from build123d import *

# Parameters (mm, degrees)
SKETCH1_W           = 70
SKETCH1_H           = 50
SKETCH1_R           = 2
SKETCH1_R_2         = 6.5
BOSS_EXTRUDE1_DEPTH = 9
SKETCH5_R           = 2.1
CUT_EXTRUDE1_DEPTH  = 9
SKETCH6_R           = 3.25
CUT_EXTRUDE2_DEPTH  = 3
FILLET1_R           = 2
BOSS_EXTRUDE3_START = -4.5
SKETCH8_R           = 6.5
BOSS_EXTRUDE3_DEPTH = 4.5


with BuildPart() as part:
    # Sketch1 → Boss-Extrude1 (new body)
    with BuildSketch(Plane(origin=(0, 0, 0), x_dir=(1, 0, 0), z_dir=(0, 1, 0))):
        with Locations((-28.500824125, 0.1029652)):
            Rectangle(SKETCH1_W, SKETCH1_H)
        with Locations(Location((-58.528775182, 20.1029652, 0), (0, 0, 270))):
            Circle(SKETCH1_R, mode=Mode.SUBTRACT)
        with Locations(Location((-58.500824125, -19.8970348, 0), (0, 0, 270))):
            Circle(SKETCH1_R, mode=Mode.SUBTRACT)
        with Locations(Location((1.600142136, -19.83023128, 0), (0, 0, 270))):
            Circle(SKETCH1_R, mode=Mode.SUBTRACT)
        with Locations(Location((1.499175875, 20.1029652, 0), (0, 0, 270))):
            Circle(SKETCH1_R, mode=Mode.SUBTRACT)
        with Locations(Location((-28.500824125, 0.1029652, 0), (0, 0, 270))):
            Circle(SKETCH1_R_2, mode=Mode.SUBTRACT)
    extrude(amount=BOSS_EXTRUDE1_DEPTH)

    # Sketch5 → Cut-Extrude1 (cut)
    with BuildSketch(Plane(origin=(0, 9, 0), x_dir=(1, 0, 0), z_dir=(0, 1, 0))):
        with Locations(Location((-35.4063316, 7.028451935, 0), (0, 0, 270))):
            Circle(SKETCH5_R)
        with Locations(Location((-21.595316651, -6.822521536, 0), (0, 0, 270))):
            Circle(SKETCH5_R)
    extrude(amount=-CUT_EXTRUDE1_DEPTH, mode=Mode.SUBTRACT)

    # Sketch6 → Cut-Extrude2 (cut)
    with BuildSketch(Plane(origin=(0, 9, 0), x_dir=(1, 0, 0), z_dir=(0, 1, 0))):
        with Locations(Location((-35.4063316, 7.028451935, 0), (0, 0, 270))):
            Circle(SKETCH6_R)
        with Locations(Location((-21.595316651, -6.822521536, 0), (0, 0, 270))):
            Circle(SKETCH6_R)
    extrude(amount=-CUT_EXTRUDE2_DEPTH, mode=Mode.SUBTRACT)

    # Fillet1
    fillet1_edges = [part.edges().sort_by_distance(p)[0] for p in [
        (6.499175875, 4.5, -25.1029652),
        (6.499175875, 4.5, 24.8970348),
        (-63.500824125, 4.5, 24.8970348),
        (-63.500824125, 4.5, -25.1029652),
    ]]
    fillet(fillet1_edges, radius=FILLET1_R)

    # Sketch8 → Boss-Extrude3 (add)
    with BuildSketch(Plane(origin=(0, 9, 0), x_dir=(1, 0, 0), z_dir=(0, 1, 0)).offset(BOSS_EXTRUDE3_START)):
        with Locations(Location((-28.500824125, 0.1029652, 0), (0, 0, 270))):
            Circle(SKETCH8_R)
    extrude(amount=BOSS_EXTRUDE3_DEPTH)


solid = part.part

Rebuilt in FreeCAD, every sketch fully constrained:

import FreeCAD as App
import Part
import Sketcher


def edges_at(feature, points):
    """Names of the edges that pass closest to the given points."""
    edges = feature.Shape.Edges
    near = lambda p: min(range(len(edges)), key=lambda i: edges[i].distToShape(Part.Vertex(*p))[0])
    return sorted({f"Edge{near(p) + 1}" for p in points})


def add_polygon(sketch, points):
    """Adds a closed chain of lines whose ends are joined by coincident constraints."""
    first, n = sketch.GeometryCount, len(points)
    for a, b in zip(points, points[1:] + points[:1]):
        sketch.addGeometry(Part.LineSegment(App.Vector(*a, 0), App.Vector(*b, 0)), False)
    for i in range(n):
        sketch.addConstraint(Sketcher.Constraint("Coincident", first + i, 2, first + (i + 1) % n, 1))

doc = App.newDocument("Part")
body = doc.addObject("PartDesign::Body", "Body")

# Sketch on XZ plane
sketch1 = doc.addObject("Sketcher::SketchObject", "Sketch")
body.addObject(sketch1)
sketch1.AttachmentSupport = (doc.XZ_Plane, [""])
sketch1.MapMode = "FlatFace"
add_polygon(sketch1, [(-63.5, -25.1), (-63.5, 24.9), (6.5, 24.9), (6.5, -25.1)])  # lines 0-3
sketch1.addGeometry(Part.Circle(App.Vector(-58.5, 19.9, 0), App.Vector(0, 0, 1), 2), False)  # 4
sketch1.addGeometry(Part.Circle(App.Vector(1.6, 19.8, 0), App.Vector(0, 0, 1), 2), False)  # 5
sketch1.addGeometry(Part.Circle(App.Vector(-28.5, -0.1, 0), App.Vector(0, 0, 1), 6.5), False)  # 6
sketch1.addGeometry(Part.Circle(App.Vector(-58.5, -20.1, 0), App.Vector(0, 0, 1), 2), False)  # 7
sketch1.addGeometry(Part.Circle(App.Vector(1.5, -20.1, 0), App.Vector(0, 0, 1), 2), False)  # 8
sketch1.addConstraint([
    Sketcher.Constraint("Vertical", 0),
    Sketcher.Constraint("Horizontal", 1),
    Sketcher.Constraint("Vertical", 2),
    Sketcher.Constraint("Horizontal", 3),
    Sketcher.Constraint("Equal", 4, 5),
    Sketcher.Constraint("Equal", 5, 7),
    Sketcher.Constraint("Equal", 7, 8),
    Sketcher.Constraint("Horizontal", 7, 3, 8, 3),
    Sketcher.Constraint("Diameter", 4, 4.0),
    Sketcher.Constraint("Diameter", 6, 13.0),
    Sketcher.Constraint("DistanceX", 1, 1, 1, 2, 70.0),
    Sketcher.Constraint("DistanceY", 0, 1, 0, 2, 50.0),
    Sketcher.Constraint("DistanceX", 4, 3, 6, 3, 30.0),
    Sketcher.Constraint("DistanceY", 6, 3, 4, 3, 20.0),
    Sketcher.Constraint("DistanceY", 7, 3, 6, 3, 20.0),
    Sketcher.Constraint("DistanceX", 6, 3, 8, 3, 30.0),
    Sketcher.Constraint("DistanceX", 0, 2, 4, 3, 5.0),
    Sketcher.Constraint("DistanceY", 4, 3, 0, 2, 5.0),
    Sketcher.Constraint("DistanceY", -1, 1, 5, 3, 19.830231),
    Sketcher.Constraint("DistanceX", 7, 3, 6, 3, 30.027951),
    Sketcher.Constraint("DistanceX", 4, 3, -1, 1, 58.500824),
    Sketcher.Constraint("DistanceY", -1, 1, 4, 3, 19.897035),
    Sketcher.Constraint("DistanceX", -1, 1, 5, 3, 1.600142),
])
pad1 = doc.addObject("PartDesign::Pad", "Pad")
body.addObject(pad1)
pad1.Profile = sketch1
pad1.Length = 9
pad1.Reversed = True

# Sketch on XZ plane
sketch2 = doc.addObject("Sketcher::SketchObject", "Sketch001")
body.addObject(sketch2)
sketch2.AttachmentSupport = (doc.XZ_Plane, [""])
sketch2.MapMode = "FlatFace"
sketch2.AttachmentOffset = App.Placement(App.Vector(0, 0, -9), App.Rotation())
sketch2.addGeometry([
    Part.Circle(App.Vector(-35.4, -7, 0), App.Vector(0, 0, 1), 2.1),
    Part.Circle(App.Vector(-21.6, 6.8, 0), App.Vector(0, 0, 1), 2.1),
], False)
sketch2.addConstraint([
    Sketcher.Constraint("Equal", 0, 1),
    Sketcher.Constraint("Diameter", 0, 4.2),
    Sketcher.Constraint("DistanceX", 0, 3, -1, 1, 35.406332),
    Sketcher.Constraint("DistanceY", 0, 3, -1, 1, 7.028452),
    Sketcher.Constraint("DistanceY", -1, 1, 1, 3, 6.822522),
    Sketcher.Constraint("DistanceX", 1, 3, -1, 1, 21.595317),
])
pocket1 = doc.addObject("PartDesign::Pocket", "Pocket")
body.addObject(pocket1)
pocket1.Profile = sketch2
pocket1.Length = 9
pocket1.Reversed = True

# Sketch on XZ plane
sketch3 = doc.addObject("Sketcher::SketchObject", "Sketch002")
body.addObject(sketch3)
sketch3.AttachmentSupport = (doc.XZ_Plane, [""])
sketch3.MapMode = "FlatFace"
sketch3.AttachmentOffset = App.Placement(App.Vector(0, 0, -9), App.Rotation())
sketch3.addGeometry([
    Part.Circle(App.Vector(-35.4, -7, 0), App.Vector(0, 0, 1), 3.2),
    Part.Circle(App.Vector(-21.6, 6.8, 0), App.Vector(0, 0, 1), 3.2),
], False)
sketch3.addConstraint([
    Sketcher.Constraint("Equal", 0, 1),
    Sketcher.Constraint("Diameter", 0, 6.5),
    Sketcher.Constraint("DistanceX", 0, 3, -1, 1, 35.406332),
    Sketcher.Constraint("DistanceY", 0, 3, -1, 1, 7.028452),
    Sketcher.Constraint("DistanceY", -1, 1, 1, 3, 6.822522),
    Sketcher.Constraint("DistanceX", 1, 3, -1, 1, 21.595317),
])
pocket2 = doc.addObject("PartDesign::Pocket", "Pocket001")
body.addObject(pocket2)
pocket2.Profile = sketch3
pocket2.Length = 3
pocket2.Reversed = True
doc.recompute()

fillet = doc.addObject("PartDesign::Fillet", "Fillet")
body.addObject(fillet)
fillet.Base = (pocket2, edges_at(pocket2, [
    (6.499, 4.5, -25.103),
    (6.499, 4.5, 24.897),
    (-63.501, 4.5, 24.897),
    (-63.501, 4.5, -25.103),
]))
fillet.Radius = 2

# Sketch on XZ plane
sketch4 = doc.addObject("Sketcher::SketchObject", "Sketch003")
body.addObject(sketch4)
sketch4.AttachmentSupport = (doc.XZ_Plane, [""])
sketch4.MapMode = "FlatFace"
sketch4.AttachmentOffset = App.Placement(App.Vector(0, 0, -4.5), App.Rotation())
sketch4.addGeometry(Part.Circle(App.Vector(-29, 0, 0), App.Vector(0, 0, 1), 6), False)
sketch4.addConstraint([
    Sketcher.Constraint("Diameter", 0, 13.0),
    Sketcher.Constraint("DistanceX", 0, 3, -1, 1, 28.500824),
    Sketcher.Constraint("DistanceY", 0, 3, -1, 1, 0.102965),
])
pad2 = doc.addObject("PartDesign::Pad", "Pad001")
body.addObject(pad2)
pad2.Profile = sketch4
pad2.Length = 4.5
pad2.Reversed = True

doc.recompute()
